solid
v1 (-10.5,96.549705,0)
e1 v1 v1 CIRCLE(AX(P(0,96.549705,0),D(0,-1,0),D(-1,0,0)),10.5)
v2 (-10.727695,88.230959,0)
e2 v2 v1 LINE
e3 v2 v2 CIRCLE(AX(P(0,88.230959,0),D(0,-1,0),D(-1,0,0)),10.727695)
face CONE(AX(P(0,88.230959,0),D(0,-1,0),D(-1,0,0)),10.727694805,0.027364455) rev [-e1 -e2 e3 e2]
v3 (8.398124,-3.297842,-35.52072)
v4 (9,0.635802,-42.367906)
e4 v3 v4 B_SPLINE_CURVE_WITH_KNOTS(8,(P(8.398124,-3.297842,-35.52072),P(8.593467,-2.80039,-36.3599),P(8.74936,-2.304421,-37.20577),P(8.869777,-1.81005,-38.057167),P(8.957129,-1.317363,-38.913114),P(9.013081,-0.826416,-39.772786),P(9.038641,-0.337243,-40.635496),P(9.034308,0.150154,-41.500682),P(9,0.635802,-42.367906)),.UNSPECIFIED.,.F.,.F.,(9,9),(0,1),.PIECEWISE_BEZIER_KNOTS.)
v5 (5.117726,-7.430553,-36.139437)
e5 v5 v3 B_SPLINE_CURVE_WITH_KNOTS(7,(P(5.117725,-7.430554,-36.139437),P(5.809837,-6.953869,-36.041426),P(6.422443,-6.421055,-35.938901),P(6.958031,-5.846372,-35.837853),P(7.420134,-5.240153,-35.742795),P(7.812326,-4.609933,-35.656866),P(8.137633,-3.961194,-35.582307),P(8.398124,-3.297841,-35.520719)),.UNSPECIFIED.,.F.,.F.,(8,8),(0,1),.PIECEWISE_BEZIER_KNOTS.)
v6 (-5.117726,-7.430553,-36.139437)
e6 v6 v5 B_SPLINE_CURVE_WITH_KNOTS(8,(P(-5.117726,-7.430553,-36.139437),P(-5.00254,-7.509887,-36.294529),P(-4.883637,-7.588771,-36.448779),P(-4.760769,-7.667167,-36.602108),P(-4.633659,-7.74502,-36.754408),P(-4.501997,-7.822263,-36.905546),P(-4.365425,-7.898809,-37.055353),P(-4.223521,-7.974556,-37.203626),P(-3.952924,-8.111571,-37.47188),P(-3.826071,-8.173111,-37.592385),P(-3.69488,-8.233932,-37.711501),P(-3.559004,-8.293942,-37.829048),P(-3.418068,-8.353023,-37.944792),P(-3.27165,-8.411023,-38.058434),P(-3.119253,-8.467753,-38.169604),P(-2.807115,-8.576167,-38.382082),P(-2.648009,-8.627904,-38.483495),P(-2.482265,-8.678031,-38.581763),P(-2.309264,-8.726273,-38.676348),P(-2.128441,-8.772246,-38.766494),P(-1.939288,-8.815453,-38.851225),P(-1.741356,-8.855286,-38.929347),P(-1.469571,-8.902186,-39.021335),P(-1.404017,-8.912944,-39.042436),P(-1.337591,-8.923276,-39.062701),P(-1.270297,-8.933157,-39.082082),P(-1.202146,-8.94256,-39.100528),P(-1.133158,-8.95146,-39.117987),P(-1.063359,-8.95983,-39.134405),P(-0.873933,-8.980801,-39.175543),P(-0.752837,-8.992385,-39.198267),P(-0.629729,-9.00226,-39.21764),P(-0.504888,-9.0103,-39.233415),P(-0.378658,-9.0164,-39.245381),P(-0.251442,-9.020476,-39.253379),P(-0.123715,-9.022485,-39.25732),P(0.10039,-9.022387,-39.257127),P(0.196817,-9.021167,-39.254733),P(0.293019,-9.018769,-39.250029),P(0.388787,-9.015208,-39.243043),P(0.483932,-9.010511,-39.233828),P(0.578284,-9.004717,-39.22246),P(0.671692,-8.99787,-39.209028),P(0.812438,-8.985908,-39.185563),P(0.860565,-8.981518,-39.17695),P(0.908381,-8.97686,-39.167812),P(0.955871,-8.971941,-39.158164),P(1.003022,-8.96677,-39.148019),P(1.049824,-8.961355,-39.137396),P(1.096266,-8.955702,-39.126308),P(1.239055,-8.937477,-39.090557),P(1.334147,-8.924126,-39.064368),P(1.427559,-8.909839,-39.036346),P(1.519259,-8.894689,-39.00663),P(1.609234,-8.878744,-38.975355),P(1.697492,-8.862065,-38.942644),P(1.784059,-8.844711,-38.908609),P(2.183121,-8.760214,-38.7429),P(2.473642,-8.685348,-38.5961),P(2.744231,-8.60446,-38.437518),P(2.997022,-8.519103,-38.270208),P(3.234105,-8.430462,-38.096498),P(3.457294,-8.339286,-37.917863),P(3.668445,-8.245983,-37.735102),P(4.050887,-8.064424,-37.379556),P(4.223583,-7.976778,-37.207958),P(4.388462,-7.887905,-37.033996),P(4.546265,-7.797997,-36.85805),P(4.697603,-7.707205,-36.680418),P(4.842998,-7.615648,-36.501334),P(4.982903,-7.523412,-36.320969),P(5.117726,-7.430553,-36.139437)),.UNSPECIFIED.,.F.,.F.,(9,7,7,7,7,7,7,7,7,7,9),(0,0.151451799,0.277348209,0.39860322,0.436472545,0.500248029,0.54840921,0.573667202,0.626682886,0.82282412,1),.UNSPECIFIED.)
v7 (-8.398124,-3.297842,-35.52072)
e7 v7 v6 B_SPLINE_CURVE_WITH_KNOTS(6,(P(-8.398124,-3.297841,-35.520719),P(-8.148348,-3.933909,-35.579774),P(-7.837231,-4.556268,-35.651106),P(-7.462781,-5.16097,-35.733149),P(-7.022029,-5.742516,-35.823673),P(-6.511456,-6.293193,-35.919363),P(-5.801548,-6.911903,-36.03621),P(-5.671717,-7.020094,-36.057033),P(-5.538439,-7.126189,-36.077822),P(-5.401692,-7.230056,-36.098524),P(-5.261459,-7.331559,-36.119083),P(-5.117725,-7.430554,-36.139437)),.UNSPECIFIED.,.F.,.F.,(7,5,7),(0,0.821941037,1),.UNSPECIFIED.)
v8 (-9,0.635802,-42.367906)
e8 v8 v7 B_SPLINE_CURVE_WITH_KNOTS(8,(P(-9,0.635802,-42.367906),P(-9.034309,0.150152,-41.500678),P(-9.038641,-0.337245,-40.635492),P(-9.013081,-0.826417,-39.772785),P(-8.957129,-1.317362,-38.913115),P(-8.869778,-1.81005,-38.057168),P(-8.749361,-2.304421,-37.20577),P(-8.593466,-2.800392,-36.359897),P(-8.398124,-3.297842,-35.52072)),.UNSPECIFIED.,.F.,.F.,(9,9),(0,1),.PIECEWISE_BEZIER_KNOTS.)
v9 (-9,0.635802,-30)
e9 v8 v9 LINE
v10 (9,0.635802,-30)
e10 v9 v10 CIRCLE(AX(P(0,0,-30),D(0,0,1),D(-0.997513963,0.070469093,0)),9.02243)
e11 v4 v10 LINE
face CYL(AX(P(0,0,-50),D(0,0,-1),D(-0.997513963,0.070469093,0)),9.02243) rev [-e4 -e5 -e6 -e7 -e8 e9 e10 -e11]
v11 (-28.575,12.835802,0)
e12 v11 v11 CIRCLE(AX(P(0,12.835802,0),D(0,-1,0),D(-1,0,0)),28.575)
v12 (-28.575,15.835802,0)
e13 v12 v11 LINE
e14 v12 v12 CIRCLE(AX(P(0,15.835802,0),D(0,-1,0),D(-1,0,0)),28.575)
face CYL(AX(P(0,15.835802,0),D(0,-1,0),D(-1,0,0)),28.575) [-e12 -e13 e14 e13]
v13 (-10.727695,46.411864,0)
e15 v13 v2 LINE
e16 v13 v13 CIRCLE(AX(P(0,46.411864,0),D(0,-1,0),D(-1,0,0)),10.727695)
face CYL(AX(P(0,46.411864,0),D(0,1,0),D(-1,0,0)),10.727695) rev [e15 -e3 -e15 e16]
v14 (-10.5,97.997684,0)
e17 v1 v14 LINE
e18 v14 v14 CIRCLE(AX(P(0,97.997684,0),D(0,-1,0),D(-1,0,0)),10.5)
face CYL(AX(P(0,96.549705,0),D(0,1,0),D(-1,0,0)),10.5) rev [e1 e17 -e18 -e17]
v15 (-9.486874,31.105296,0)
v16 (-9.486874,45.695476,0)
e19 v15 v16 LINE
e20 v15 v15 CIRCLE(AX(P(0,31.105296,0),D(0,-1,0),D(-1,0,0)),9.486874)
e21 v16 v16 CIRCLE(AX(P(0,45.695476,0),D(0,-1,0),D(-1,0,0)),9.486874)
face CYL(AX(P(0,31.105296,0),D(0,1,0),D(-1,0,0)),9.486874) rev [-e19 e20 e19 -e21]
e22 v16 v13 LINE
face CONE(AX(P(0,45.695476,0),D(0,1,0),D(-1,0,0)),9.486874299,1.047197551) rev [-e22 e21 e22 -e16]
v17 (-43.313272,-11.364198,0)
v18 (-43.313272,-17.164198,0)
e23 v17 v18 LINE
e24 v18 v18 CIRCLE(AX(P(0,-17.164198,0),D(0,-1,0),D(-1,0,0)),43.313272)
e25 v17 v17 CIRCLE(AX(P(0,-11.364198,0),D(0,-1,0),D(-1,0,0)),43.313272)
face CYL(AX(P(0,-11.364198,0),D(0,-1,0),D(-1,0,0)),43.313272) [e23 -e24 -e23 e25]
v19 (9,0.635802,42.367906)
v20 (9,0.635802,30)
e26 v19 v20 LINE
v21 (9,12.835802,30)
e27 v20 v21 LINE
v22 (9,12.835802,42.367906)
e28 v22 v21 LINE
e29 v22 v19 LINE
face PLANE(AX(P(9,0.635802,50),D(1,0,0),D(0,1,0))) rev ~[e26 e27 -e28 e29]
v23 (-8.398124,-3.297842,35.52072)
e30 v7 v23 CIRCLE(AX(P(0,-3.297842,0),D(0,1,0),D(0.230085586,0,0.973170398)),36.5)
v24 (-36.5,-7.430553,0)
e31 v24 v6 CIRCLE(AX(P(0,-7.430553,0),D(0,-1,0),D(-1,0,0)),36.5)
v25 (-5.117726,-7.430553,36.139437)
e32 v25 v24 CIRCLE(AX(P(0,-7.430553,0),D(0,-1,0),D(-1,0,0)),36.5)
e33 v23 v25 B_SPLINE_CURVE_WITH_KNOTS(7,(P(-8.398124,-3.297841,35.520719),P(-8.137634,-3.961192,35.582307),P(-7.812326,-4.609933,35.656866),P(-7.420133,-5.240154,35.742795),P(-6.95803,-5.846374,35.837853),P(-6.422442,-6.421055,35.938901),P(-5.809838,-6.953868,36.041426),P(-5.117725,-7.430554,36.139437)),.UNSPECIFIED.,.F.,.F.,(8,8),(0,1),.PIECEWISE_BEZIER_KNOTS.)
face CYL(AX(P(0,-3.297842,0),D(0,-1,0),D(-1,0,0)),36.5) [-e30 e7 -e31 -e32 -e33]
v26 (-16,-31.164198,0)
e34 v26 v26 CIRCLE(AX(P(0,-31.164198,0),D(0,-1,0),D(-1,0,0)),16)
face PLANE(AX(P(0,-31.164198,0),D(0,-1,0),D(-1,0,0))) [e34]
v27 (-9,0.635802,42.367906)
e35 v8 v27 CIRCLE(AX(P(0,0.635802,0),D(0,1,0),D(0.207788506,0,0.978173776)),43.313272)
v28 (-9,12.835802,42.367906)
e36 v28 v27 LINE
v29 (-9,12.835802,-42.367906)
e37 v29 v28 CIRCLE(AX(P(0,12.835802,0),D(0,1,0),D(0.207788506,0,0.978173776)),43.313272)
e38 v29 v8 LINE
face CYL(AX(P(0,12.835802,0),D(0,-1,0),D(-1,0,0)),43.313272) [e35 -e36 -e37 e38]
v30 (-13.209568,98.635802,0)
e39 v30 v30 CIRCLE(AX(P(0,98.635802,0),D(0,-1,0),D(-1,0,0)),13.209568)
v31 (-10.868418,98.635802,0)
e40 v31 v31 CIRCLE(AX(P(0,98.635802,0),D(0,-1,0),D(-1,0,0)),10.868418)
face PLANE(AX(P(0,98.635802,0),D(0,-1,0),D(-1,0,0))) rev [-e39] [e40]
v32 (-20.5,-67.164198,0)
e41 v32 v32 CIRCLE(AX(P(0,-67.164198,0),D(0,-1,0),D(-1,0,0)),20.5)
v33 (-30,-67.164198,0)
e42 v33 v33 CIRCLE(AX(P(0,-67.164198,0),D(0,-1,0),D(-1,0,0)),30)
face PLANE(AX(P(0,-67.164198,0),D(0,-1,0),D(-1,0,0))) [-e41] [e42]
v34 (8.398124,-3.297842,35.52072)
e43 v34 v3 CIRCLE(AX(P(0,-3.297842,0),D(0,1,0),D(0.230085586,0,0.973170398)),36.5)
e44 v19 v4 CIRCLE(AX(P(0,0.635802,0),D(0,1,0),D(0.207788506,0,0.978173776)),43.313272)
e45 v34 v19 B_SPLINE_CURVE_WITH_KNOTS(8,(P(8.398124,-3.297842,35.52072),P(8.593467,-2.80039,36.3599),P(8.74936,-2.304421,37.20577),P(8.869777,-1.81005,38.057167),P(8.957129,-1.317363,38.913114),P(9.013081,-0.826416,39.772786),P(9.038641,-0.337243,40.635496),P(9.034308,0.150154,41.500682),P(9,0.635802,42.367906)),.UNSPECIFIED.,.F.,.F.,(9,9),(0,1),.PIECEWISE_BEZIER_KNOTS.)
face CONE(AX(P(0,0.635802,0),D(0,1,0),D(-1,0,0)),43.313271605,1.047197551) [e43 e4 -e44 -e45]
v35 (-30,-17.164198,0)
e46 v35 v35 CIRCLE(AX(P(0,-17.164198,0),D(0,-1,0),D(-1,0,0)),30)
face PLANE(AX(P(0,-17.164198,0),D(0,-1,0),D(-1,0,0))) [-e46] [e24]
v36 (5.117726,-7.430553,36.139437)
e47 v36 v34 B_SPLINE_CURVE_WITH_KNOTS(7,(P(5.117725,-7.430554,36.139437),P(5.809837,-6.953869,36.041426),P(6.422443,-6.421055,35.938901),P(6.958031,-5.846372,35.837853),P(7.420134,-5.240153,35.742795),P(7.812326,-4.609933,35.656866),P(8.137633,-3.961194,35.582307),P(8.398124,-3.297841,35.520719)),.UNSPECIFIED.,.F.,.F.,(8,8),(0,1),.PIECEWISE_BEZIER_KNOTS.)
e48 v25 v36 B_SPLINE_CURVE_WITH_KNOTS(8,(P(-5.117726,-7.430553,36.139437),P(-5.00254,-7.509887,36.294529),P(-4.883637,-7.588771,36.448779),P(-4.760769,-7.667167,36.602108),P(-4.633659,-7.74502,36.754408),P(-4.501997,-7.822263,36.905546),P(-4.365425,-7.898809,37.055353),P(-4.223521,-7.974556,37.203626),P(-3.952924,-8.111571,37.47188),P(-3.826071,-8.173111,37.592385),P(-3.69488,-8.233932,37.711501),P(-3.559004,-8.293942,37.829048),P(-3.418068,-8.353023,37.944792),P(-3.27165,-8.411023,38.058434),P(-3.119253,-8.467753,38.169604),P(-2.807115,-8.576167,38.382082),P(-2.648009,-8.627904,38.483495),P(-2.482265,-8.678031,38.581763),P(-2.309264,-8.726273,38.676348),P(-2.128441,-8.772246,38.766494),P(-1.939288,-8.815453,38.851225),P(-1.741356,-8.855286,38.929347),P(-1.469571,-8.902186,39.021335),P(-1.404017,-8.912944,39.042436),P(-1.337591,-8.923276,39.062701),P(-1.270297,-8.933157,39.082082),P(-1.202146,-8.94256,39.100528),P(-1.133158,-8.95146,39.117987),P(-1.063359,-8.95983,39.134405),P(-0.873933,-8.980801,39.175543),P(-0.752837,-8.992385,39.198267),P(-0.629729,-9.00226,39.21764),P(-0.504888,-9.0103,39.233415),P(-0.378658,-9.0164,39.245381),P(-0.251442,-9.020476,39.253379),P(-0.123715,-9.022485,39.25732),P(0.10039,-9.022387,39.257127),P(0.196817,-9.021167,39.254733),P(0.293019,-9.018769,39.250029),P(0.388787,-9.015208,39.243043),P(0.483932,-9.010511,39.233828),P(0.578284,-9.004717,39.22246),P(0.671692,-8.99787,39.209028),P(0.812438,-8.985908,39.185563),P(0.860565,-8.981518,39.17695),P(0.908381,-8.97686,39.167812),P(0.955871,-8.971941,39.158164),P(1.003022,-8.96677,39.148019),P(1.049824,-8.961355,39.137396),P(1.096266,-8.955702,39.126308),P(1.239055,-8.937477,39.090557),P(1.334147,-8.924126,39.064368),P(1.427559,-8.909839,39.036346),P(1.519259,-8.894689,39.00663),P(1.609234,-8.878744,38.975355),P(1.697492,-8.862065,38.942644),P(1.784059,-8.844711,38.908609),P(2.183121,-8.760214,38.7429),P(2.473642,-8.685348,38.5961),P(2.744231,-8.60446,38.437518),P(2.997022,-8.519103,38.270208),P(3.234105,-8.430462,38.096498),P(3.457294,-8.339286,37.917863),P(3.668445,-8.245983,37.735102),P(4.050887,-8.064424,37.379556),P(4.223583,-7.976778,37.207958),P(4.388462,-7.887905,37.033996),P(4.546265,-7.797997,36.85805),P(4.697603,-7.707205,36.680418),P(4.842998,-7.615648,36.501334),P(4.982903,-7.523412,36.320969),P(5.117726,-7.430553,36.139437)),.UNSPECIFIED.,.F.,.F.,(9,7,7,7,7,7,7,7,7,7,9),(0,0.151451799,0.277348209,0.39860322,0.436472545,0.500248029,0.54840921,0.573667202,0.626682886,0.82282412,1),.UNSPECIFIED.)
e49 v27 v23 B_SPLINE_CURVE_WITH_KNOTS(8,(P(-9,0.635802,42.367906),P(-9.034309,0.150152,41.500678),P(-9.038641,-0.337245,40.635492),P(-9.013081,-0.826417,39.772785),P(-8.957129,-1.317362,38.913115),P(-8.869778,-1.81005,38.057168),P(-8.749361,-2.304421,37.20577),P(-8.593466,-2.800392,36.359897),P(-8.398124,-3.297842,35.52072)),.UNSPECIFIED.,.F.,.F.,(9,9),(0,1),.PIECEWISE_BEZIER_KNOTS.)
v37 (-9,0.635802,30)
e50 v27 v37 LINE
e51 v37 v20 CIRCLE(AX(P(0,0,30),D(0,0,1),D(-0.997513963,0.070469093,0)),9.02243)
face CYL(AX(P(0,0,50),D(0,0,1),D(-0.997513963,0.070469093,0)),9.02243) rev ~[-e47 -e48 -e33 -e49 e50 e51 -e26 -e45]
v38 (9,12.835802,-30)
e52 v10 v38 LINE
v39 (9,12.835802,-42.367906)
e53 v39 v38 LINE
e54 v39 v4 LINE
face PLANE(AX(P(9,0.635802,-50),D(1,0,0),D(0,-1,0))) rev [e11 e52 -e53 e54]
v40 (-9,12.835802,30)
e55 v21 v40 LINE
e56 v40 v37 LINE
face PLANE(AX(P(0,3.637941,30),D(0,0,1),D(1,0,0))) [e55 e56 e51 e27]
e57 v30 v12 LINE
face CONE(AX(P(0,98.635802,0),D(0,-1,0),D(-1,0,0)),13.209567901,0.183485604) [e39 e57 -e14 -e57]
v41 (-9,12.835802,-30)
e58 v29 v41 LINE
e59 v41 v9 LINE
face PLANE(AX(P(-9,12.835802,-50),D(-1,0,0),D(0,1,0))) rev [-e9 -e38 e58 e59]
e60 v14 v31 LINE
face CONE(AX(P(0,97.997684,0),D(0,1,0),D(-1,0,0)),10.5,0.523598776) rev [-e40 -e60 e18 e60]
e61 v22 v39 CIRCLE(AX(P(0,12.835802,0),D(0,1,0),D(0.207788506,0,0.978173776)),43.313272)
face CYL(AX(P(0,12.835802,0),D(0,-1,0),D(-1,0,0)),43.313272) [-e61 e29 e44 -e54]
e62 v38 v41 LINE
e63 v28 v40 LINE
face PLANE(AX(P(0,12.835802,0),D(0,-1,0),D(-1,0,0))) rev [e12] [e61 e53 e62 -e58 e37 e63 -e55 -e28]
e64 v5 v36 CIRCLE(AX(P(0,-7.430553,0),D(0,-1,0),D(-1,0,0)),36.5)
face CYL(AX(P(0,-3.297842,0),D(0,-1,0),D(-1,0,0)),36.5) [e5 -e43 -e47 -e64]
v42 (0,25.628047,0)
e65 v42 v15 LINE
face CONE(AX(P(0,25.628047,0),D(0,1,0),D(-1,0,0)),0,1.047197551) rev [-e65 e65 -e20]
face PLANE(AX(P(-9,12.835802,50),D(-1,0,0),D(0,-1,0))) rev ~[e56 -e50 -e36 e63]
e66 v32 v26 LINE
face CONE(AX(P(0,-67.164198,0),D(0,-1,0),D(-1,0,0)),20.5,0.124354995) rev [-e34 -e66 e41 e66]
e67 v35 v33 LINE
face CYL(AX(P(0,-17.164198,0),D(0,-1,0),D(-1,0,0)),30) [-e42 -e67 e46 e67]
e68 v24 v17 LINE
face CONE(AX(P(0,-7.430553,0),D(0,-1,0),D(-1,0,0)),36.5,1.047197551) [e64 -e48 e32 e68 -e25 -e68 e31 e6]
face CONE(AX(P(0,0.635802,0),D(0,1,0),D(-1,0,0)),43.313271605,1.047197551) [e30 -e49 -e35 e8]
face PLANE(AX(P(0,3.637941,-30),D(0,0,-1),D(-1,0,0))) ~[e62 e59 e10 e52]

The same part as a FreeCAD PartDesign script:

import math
import FreeCAD as App
import Part
import Sketcher
from FreeCAD import Vector
Q = App.Units.Quantity

doc = App.newDocument("Part")
params = doc.addObject("Spreadsheet::Sheet", "Params")
for row, (alias, value) in enumerate([
    ("sketch1_width", "16 mm"),
    ("sketch1_height", "3 mm"),
    ("sketch1_height2", "50 mm"),
    ("sketch1_width2", "9.5 mm"),
    ("sketch1_height3", "12.2 mm"),
    ("revolution_angle", "360 deg"),
    ("sketch2_width", "18 mm"),
    ("sketch2_height", "12.2 mm"),
    ("pocket1_length", "20 mm"),
], start=1):
    params.set(f"A{row}", alias)
    params.set(f"B{row}", "=" + value)
    params.setAlias(f"B{row}", alias)

body = doc.addObject("PartDesign::Body", "Body")

sketch1 = body.newObject("Sketcher::SketchObject", "Sketch")
sketch1.AttachmentSupport = (doc.getObject("XY_Plane"), [""])
sketch1.MapMode = "FlatFace"
sketch1.addGeometry([
    Part.LineSegment(Vector(-10.9, 98.6, 0), Vector(-13.2, 98.6, 0)),
    Part.LineSegment(Vector(-13.2, 98.6, 0), Vector(-28.6, 15.8, 0)),
    Part.LineSegment(Vector(-28.6, 15.8, 0), Vector(-28.6, 12.8, 0)),
    Part.LineSegment(Vector(-28.6, 12.8, 0), Vector(-43.3, 12.8, 0)),
    Part.LineSegment(Vector(-43.3, 12.8, 0), Vector(-43.3, 0.6, 0)),
    Part.LineSegment(Vector(-43.3, 0.6, 0), Vector(-36.5, -3.3, 0)),
    Part.LineSegment(Vector(-36.5, -3.3, 0), Vector(-36.5, -7.4, 0)),
    Part.LineSegment(Vector(-36.5, -7.4, 0), Vector(-43.3, -11.4, 0)),
    Part.LineSegment(Vector(-43.3, -11.4, 0), Vector(-43.3, -17.2, 0)),
    Part.LineSegment(Vector(-43.3, -17.2, 0), Vector(-30, -17.2, 0)),
    Part.LineSegment(Vector(-30, -17.2, 0), Vector(-30, -67.2, 0)),
    Part.LineSegment(Vector(-30, -67.2, 0), Vector(-20.5, -67.2, 0)),
    Part.LineSegment(Vector(-20.5, -67.2, 0), Vector(-16, -31.2, 0)),
    Part.LineSegment(Vector(-16, -31.2, 0), Vector(0, -31.2, 0)),
    Part.LineSegment(Vector(0, -31.2, 0), Vector(0, 25.6, 0)),
    Part.LineSegment(Vector(0, 25.6, 0), Vector(-9.5, 31.1, 0)),
    Part.LineSegment(Vector(-9.5, 31.1, 0), Vector(-9.5, 45.7, 0)),
    Part.LineSegment(Vector(-9.5, 45.7, 0), Vector(-10.7, 46.4, 0)),
    Part.LineSegment(Vector(-10.7, 46.4, 0), Vector(-10.7, 88.2, 0)),
    Part.LineSegment(Vector(-10.7, 88.2, 0), Vector(-10.5, 96.5, 0)),
    Part.LineSegment(Vector(-10.5, 96.5, 0), Vector(-10.5, 98, 0)),
    Part.LineSegment(Vector(-10.5, 98, 0), Vector(-10.9, 98.6, 0)),
], False)
sketch1.addConstraint([
    Sketcher.Constraint("Coincident", 0, 2, 1, 1),
    Sketcher.Constraint("Coincident", 1, 2, 2, 1),
    Sketcher.Constraint("Coincident", 2, 2, 3, 1),
    Sketcher.Constraint("Coincident", 3, 2, 4, 1),
    Sketcher.Constraint("Coincident", 4, 2, 5, 1),
    Sketcher.Constraint("Coincident", 5, 2, 6, 1),
    Sketcher.Constraint("Coincident", 6, 2, 7, 1),
    Sketcher.Constraint("Coincident", 7, 2, 8, 1),
    Sketcher.Constraint("Coincident", 8, 2, 9, 1),
    Sketcher.Constraint("Coincident", 9, 2, 10, 1),
    Sketcher.Constraint("Coincident", 10, 2, 11, 1),
    Sketcher.Constraint("Coincident", 11, 2, 12, 1),
    Sketcher.Constraint("Coincident", 12, 2, 13, 1),
    Sketcher.Constraint("Coincident", 13, 2, 14, 1),
    Sketcher.Constraint("Coincident", 14, 2, 15, 1),
    Sketcher.Constraint("Coincident", 15, 2, 16, 1),
    Sketcher.Constraint("Coincident", 16, 2, 17, 1),
    Sketcher.Constraint("Coincident", 17, 2, 18, 1),
    Sketcher.Constraint("Coincident", 18, 2, 19, 1),
    Sketcher.Constraint("Coincident", 19, 2, 20, 1),
    Sketcher.Constraint("Coincident", 20, 2, 21, 1),
    Sketcher.Constraint("Coincident", 21, 2, 0, 1),
    Sketcher.Constraint("Horizontal", 0),
    Sketcher.Constraint("Vertical", 2),
    Sketcher.Constraint("Horizontal", 3),
    Sketcher.Constraint("Vertical", 4),
    Sketcher.Constraint("Vertical", 6),
    Sketcher.Constraint("Vertical", 8),
    Sketcher.Constraint("Horizontal", 9),
    Sketcher.Constraint("Vertical", 10),
    Sketcher.Constraint("Horizontal", 11),
    Sketcher.Constraint("Horizontal", 13),
    Sketcher.Constraint("Vertical", 14),
    Sketcher.Constraint("Vertical", 16),
    Sketcher.Constraint("Vertical", 18),
    Sketcher.Constraint("Vertical", 20),
    Sketcher.Constraint("PointOnObject", 13, 2, -2),
    Sketcher.Constraint("Parallel", 5, 15),
    Sketcher.Constraint("Parallel", 15, 17),
    Sketcher.Constraint("Perpendicular", 7, 21),
    Sketcher.Constraint("Vertical", 4, 2, 7, 2),
    Sketcher.Constraint("Equal", 5, 7),
    Sketcher.Constraint("DistanceX", 13, 1, 13, 2, Q("16 mm")),
    Sketcher.Constraint("DistanceY", 2, 2, 2, 1, Q("3 mm")),
    Sketcher.Constraint("DistanceY", 10, 2, 10, 1, Q("50 mm")),
    Sketcher.Constraint("Angle", 5, Q("-30 deg")),
    Sketcher.Constraint("DistanceX", 11, 1, 11, 2, Q("9.5 mm")),
    Sketcher.Constraint("DistanceY", 4, 2, 4, 1, Q("12.2 mm")),
    Sketcher.Constraint("DistanceY", 8, 2, 8, 1, Q("5.8 mm")),
    Sketcher.Constraint("DistanceX", 9, 2, -1, 1, Q("30 mm")),
    Sketcher.Constraint("DistanceY", 4, 2, 0, 2, Q("98 mm")),
    Sketcher.Constraint("DistanceY", 7, 2, 4, 2, Q("12 mm")),
    Sketcher.Constraint("DistanceX", 6, 2, 11, 2, Q("16 mm")),
    Sketcher.Constraint("DistanceY", 12, 2, 9, 2, Q("14 mm")),
    Sketcher.Constraint("DistanceX", 19, 2, -1, 1, Q("10.5 mm")),
    Sketcher.Constraint("DistanceX", 1, 2, -1, 1, Q("28.575 mm")),
    Sketcher.Constraint("Distance", 15, Q("10.954499 mm")),
    Sketcher.Constraint("DistanceX", 0, 2, 0, 1, Q("2.34115 mm")),
    Sketcher.Constraint("DistanceX", 3, 2, 3, 1, Q("14.738272 mm")),
    Sketcher.Constraint("DistanceY", 16, 1, 16, 2, Q("14.59018 mm")),
    Sketcher.Constraint("DistanceY", 20, 1, 20, 2, Q("1.447979 mm")),
    Sketcher.Constraint("DistanceY", 6, 2, 14, 2, Q("33.0586 mm")),
    Sketcher.Constraint("DistanceY", 18, 1, 18, 2, Q("41.819095 mm")),
    Sketcher.Constraint("DistanceY", 5, 2, -1, 1, Q("3.297842 mm")),
    Sketcher.Constraint("DistanceY", -1, 1, 18, 2, Q("88.230959 mm")),
    Sketcher.Constraint("DistanceY", 17, 2, 19, 2, Q("50.137842 mm")),
])
sketch1.setExpression("Constraints[42]", "Params.sketch1_width")
sketch1.setExpression("Constraints[43]", "Params.sketch1_height")
sketch1.setExpression("Constraints[44]", "Params.sketch1_height2")
sketch1.setExpression("Constraints[46]", "Params.sketch1_width2")
sketch1.setExpression("Constraints[47]", "Params.sketch1_height3")
revolution = body.newObject("PartDesign::Revolution", "Revolution")
revolution.Profile = sketch1
revolution.ReferenceAxis = (sketch1, ["V_Axis"])
revolution.setExpression("Angle", "Params.revolution_angle")

sketch2 = body.newObject("Sketcher::SketchObject", "Sketch001")
sketch2.AttachmentSupport = (doc.getObject("XY_Plane"), [""])
sketch2.MapMode = "FlatFace"
sketch2.AttachmentOffset = App.Placement(Vector(0, 0, 50), App.Rotation())
sketch2.addGeometry([
    Part.LineSegment(Vector(-9, 13, 0), Vector(-9, 1, 0)),
    Part.ArcOfCircle(Part.Circle(Vector(0, 0, 0), Vector(0, 0, 1), 9), math.radians(176), math.radians(364)),
    Part.LineSegment(Vector(9, 1, 0), Vector(9, 13, 0)),
    Part.LineSegment(Vector(9, 13, 0), Vector(-9, 13, 0)),
], False)
sketch2.addConstraint([
    Sketcher.Constraint("Coincident", 0, 2, 1, 1),
    Sketcher.Constraint("Coincident", 1, 2, 2, 1),
    Sketcher.Constraint("Coincident", 2, 2, 3, 1),
    Sketcher.Constraint("Coincident", 3, 2, 0, 1),
    Sketcher.Constraint("Vertical", 0),
    Sketcher.Constraint("Vertical", 2),
    Sketcher.Constraint("Horizontal", 3),
    Sketcher.Constraint("Coincident", 1, 3, -1, 1),
    Sketcher.Constraint("Horizontal", 0, 2, 1, 2),
    Sketcher.Constraint("DistanceX", 3, 2, 3, 1, Q("18 mm")),
    Sketcher.Constraint("DistanceY", 0, 2, 0, 1, Q("12.2 mm")),
    Sketcher.Constraint("Radius", 1, Q("9.02243 mm")),
])
sketch2.setExpression("Constraints[9]", "Params.sketch2_width")
sketch2.setExpression("Constraints[10]", "Params.sketch2_height")
pocket1 = body.newObject("PartDesign::Pocket", "Pocket")
pocket1.Profile = sketch2
pocket1.setExpression("Length", "Params.pocket1_length")
doc.recompute()

mirrored = body.newObject("PartDesign::Mirrored", "Mirrored")
mirrored.Originals = [pocket1]
mirrored.MirrorPlane = (doc.getObject("XY_Plane"), [""])
body.Tip = mirrored

doc.recompute()
